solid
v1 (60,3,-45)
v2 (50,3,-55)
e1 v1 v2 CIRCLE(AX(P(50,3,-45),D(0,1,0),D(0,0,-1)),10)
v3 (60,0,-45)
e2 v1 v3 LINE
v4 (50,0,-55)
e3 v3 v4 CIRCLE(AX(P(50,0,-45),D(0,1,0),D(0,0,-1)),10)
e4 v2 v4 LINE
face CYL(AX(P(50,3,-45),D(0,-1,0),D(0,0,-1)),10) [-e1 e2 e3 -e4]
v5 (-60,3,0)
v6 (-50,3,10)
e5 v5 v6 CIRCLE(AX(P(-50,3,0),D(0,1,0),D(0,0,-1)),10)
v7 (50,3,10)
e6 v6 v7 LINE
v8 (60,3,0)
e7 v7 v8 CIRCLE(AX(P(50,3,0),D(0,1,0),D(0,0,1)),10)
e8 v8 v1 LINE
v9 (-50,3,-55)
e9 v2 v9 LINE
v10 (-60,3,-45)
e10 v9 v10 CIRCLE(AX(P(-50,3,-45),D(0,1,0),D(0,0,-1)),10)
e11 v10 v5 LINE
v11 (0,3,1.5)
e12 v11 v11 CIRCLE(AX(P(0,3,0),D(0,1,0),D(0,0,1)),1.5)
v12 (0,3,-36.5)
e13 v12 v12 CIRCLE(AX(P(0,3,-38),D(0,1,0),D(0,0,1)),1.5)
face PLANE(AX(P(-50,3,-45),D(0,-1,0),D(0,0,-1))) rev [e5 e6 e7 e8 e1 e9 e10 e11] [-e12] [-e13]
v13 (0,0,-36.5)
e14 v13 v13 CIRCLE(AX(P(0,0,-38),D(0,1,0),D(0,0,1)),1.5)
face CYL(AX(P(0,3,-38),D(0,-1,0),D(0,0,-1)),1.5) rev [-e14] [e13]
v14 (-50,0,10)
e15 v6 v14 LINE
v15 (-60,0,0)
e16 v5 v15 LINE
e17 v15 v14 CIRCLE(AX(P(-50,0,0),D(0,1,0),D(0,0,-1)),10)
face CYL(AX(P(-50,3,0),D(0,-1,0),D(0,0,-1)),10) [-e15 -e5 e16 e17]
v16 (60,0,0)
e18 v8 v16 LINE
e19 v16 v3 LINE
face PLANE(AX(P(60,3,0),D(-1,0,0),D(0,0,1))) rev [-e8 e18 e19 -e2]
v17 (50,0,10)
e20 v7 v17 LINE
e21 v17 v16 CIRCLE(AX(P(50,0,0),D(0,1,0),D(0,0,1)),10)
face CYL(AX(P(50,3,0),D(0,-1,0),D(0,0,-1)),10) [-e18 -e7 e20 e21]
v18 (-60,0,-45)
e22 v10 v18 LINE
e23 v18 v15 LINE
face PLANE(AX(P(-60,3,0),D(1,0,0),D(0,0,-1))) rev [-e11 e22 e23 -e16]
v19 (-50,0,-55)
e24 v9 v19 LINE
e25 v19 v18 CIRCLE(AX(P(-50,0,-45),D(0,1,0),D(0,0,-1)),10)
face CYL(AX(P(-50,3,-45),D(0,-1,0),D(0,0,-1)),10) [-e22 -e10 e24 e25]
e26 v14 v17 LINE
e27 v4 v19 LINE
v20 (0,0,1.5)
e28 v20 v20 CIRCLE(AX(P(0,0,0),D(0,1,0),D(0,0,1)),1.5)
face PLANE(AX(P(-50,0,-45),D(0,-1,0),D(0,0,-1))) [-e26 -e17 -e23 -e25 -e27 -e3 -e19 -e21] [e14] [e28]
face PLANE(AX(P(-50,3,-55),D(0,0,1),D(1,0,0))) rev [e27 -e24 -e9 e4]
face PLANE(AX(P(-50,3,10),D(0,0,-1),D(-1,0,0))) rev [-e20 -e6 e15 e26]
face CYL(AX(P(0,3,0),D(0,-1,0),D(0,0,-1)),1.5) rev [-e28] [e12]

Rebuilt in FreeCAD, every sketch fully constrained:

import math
import FreeCAD as App
import Part
import Sketcher
Q = App.Units.Quantity

doc = App.newDocument("Part")
body = doc.addObject("PartDesign::Body", "Body")

# Sketch on XZ plane
sketch1 = body.newObject("Sketcher::SketchObject", "Sketch")
sketch1.AttachmentSupport = (doc.getObject("XZ_Plane"), [""])
sketch1.MapMode = "FlatFace"
sketch1.addGeometry([
    Part.LineSegment(App.Vector(-50, 10, 0), App.Vector(50, 10, 0)),  # 0
    Part.ArcOfCircle(Part.Circle(App.Vector(50, 0, 0), App.Vector(0, 0, 1), 10), math.radians(0), math.radians(90)),  # 1
    Part.LineSegment(App.Vector(60, 0, 0), App.Vector(60, -45, 0)),  # 2
    Part.ArcOfCircle(Part.Circle(App.Vector(50, -45, 0), App.Vector(0, 0, 1), 10), math.radians(-90), math.radians(0)),  # 3
    Part.LineSegment(App.Vector(50, -55, 0), App.Vector(-50, -55, 0)),  # 4
    Part.ArcOfCircle(Part.Circle(App.Vector(-50, -45, 0), App.Vector(0, 0, 1), 10), math.radians(180), math.radians(270)),  # 5
    Part.LineSegment(App.Vector(-60, -45, 0), App.Vector(-60, 0, 0)),  # 6
    Part.ArcOfCircle(Part.Circle(App.Vector(-50, 0, 0), App.Vector(0, 0, 1), 10), math.radians(90), math.radians(180)),  # 7
    Part.Circle(App.Vector(0, 0, 0), App.Vector(0, 0, 1), 1.5),  # 8
    Part.Circle(App.Vector(0, -38, 0), App.Vector(0, 0, 1), 1.5),  # 9
], False)
sketch1.addConstraint([
    Sketcher.Constraint("Tangent", 0, 2, 1, 2),
    Sketcher.Constraint("Tangent", 1, 1, 2, 1),
    Sketcher.Constraint("Tangent", 2, 2, 3, 2),
    Sketcher.Constraint("Tangent", 3, 1, 4, 1),
    Sketcher.Constraint("Tangent", 4, 2, 5, 2),
    Sketcher.Constraint("Tangent", 5, 1, 6, 1),
    Sketcher.Constraint("Tangent", 6, 2, 7, 2),
    Sketcher.Constraint("Tangent", 7, 1, 0, 1),
    Sketcher.Constraint("Horizontal", 0),
    Sketcher.Constraint("Vertical", 2),
    Sketcher.Constraint("Horizontal", 4),
    Sketcher.Constraint("Vertical", 6),
    Sketcher.Constraint("Coincident", 8, 3, -1, 1),
    Sketcher.Constraint("Equal", 1, 3),
    Sketcher.Constraint("Equal", 3, 5),
    Sketcher.Constraint("Equal", 5, 7),
    Sketcher.Constraint("Equal", 8, 9),
    Sketcher.Constraint("Symmetric", 1, 3, 7, 3, -1, 1),
    Sketcher.Constraint("PointOnObject", 9, 3, -2),
    Sketcher.Constraint("Diameter", 8, Q("3 mm")),
    Sketcher.Constraint("Radius", 1, Q("10 mm")),
    Sketcher.Constraint("DistanceX", 0, 1, 0, 2, Q("100 mm")),
    Sketcher.Constraint("DistanceY", 2, 2, 2, 1, Q("45 mm")),
    Sketcher.Constraint("DistanceY", 9, 3, -1, 1, Q("38 mm")),
])
pad1 = body.newObject("PartDesign::Pad", "Pad")
pad1.Profile = sketch1
pad1.Length = 3
pad1.Reversed = True

doc.recompute()
